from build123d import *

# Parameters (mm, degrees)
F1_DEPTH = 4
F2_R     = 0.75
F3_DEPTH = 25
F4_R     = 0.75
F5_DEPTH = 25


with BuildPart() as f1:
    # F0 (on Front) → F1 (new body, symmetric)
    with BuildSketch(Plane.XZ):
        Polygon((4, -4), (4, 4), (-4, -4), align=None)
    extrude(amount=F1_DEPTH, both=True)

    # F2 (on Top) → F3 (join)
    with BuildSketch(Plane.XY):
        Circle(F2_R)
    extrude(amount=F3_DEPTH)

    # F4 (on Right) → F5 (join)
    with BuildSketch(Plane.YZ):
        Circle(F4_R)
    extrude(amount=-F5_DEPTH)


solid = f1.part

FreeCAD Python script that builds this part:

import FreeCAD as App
import Part
import Sketcher

V = App.Vector


def add_polygon(sketch, points):
    """Adds a closed chain of lines whose ends are joined by coincident constraints."""
    first, n = sketch.GeometryCount, len(points)
    for a, b in zip(points, points[1:] + points[:1]):
        sketch.addGeometry(Part.LineSegment(App.Vector(*a, 0), App.Vector(*b, 0)), False)
    for i in range(n):
        sketch.addConstraint(Sketcher.Constraint("Coincident", first + i, 2, first + (i + 1) % n, 1))

doc = App.newDocument("Part")
params = doc.addObject("Spreadsheet::Sheet", "Params")
for row, (alias, value) in enumerate([
    ("sketch1_width", "8 mm"),
    ("pad1_length", "8 mm"),
    ("sketch2_diameter", "1.5 mm"),
    ("pad2_length", "25 mm"),
    ("sketch3_diameter", "1.5 mm"),
    ("pad3_length", "25 mm"),
], start=1):
    params.set(f"A{row}", alias)
    params.set(f"B{row}", "=" + value)
    params.setAlias(f"B{row}", alias)

body = doc.addObject("PartDesign::Body", "Body")

sketch1 = body.newObject("Sketcher::SketchObject", "Sketch")
sketch1.AttachmentSupport = (doc.getObject("XZ_Plane"), [""])
sketch1.MapMode = "FlatFace"
add_polygon(sketch1, [(4, -4), (4, 4), (-4, -4)])
sketch1.addConstraint([
    Sketcher.Constraint("Vertical", 0),
    Sketcher.Constraint("Horizontal", 2),
    Sketcher.Constraint("Symmetric", 0, 2, 1, 2, -1, 1),
    Sketcher.Constraint("Equal", 2, 0),
    Sketcher.Constraint("DistanceX", 2, 1, 2, 2, 8.0),
])
sketch1.setExpression("Constraints[7]", "Params.sketch1_width")
pad1 = body.newObject("PartDesign::Pad", "Pad")
pad1.Profile = sketch1
pad1.setExpression("Length", "Params.pad1_length")
pad1.Midplane = True

sketch2 = body.newObject("Sketcher::SketchObject", "Sketch001")
sketch2.AttachmentSupport = (doc.getObject("XY_Plane"), [""])
sketch2.MapMode = "FlatFace"
sketch2.addGeometry(Part.Circle(V(0, 0, 0), V(0, 0, 1), 0.8), False)
sketch2.addConstraint([
    Sketcher.Constraint("Coincident", 0, 3, -1, 1),
    Sketcher.Constraint("Diameter", 0, 1.5),
])
sketch2.setExpression("Constraints[1]", "Params.sketch2_diameter")
pad2 = body.newObject("PartDesign::Pad", "Pad001")
pad2.Profile = sketch2
pad2.setExpression("Length", "Params.pad2_length")

sketch3 = body.newObject("Sketcher::SketchObject", "Sketch002")
sketch3.AttachmentSupport = (doc.getObject("YZ_Plane"), [""])
sketch3.MapMode = "FlatFace"
sketch3.addGeometry(Part.Circle(V(0, 0, 0), V(0, 0, 1), 0.8), False)
sketch3.addConstraint([
    Sketcher.Constraint("Coincident", 0, 3, -1, 1),
    Sketcher.Constraint("Diameter", 0, 1.5),
])
sketch3.setExpression("Constraints[1]", "Params.sketch3_diameter")
pad3 = body.newObject("PartDesign::Pad", "Pad002")
pad3.Profile = sketch3
pad3.setExpression("Length", "Params.pad3_length")
pad3.Reversed = True

doc.recompute()
